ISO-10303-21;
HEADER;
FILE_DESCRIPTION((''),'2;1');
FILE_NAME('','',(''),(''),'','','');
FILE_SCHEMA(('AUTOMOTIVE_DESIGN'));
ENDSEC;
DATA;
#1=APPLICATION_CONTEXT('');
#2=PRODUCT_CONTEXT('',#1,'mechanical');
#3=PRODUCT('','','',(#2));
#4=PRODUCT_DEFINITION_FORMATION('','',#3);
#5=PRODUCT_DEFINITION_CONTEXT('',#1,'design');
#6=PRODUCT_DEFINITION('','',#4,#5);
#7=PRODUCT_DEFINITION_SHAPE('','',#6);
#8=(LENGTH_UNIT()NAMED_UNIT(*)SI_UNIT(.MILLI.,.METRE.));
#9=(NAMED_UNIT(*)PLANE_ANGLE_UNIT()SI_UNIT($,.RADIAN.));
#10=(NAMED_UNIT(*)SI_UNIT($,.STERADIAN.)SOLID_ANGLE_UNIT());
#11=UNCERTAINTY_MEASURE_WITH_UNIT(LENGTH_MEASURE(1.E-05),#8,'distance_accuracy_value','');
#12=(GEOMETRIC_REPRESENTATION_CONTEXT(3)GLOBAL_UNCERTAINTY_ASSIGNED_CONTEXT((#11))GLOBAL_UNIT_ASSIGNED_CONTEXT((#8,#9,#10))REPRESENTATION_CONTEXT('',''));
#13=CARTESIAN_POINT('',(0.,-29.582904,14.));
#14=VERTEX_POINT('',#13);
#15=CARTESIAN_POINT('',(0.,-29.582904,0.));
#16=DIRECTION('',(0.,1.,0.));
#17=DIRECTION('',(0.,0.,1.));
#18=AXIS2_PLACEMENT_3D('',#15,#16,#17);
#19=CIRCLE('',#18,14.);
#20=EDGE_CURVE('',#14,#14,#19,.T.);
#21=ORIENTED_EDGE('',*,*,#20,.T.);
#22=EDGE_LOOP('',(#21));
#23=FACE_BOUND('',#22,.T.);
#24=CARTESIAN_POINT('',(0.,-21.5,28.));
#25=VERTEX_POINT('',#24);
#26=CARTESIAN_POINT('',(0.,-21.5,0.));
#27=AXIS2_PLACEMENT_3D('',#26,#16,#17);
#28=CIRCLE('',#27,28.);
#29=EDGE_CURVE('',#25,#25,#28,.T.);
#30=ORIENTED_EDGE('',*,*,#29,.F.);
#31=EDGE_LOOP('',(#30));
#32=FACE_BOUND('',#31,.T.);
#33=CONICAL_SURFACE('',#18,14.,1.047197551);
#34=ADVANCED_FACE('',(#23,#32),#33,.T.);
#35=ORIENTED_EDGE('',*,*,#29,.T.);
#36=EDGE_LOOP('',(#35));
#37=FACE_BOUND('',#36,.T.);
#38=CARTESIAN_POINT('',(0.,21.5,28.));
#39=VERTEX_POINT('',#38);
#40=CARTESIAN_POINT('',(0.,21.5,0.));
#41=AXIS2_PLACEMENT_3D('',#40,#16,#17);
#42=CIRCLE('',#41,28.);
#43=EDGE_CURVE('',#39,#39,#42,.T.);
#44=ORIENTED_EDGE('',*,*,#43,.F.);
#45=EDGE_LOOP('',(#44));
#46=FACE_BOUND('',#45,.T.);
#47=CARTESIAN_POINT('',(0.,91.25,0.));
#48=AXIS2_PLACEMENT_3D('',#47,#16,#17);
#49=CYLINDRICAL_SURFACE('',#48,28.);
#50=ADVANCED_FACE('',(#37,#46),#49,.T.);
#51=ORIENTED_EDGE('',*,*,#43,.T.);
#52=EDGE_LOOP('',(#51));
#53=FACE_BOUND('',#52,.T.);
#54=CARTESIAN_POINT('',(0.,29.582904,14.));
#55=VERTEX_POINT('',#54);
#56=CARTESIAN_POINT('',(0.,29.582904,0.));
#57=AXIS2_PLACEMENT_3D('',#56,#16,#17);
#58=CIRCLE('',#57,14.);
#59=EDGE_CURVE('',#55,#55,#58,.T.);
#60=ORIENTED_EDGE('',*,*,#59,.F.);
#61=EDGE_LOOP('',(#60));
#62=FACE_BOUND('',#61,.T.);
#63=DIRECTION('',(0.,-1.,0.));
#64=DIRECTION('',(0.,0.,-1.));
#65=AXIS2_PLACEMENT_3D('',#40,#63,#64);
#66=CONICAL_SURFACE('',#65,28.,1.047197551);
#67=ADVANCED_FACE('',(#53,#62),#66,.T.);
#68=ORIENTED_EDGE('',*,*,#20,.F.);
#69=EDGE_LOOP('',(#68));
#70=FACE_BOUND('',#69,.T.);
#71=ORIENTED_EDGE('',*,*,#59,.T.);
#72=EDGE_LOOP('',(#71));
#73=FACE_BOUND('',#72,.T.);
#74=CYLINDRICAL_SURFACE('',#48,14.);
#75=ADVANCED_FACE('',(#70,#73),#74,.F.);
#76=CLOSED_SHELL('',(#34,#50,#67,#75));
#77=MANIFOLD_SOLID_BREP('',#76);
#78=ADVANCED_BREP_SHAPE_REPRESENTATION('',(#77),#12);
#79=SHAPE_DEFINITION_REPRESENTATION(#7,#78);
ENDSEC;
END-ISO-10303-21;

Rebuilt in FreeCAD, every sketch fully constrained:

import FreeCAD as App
import Part
import Sketcher
Q = App.Units.Quantity


def add_polygon(sketch, points):
    """Adds a closed chain of lines whose ends are joined by coincident constraints."""
    first, n = sketch.GeometryCount, len(points)
    for a, b in zip(points, points[1:] + points[:1]):
        sketch.addGeometry(Part.LineSegment(App.Vector(*a, 0), App.Vector(*b, 0)), False)
    for i in range(n):
        sketch.addConstraint(Sketcher.Constraint("Coincident", first + i, 2, first + (i + 1) % n, 1))

doc = App.newDocument("Part")
params = doc.addObject("Spreadsheet::Sheet", "Params")
for row, (alias, value) in enumerate([
    ("sketch1_height", "43 mm"),
    ("revolution_angle", "360 deg"),
], start=1):
    params.set(f"A{row}", alias)
    params.set(f"B{row}", "=" + value)
    params.setAlias(f"B{row}", alias)

body = doc.addObject("PartDesign::Body", "Body")

# Sketch on XY plane
sketch1 = body.newObject("Sketcher::SketchObject", "Sketch")
sketch1.AttachmentSupport = (doc.getObject("XY_Plane"), [""])
sketch1.MapMode = "FlatFace"
add_polygon(sketch1, [(14, 29.582904), (14, -29.582904), (28, -21.5), (28, 21.5)])  # lines 0-3
sketch1.addConstraint([
    Sketcher.Constraint("Vertical", 0),
    Sketcher.Constraint("Vertical", 2),
    Sketcher.Constraint("Equal", 1, 3),
    Sketcher.Constraint("DistanceY", 2, 1, 2, 2, 43.0),
    Sketcher.Constraint("Angle", 1, Q("30 deg")),
    Sketcher.Constraint("DistanceX", -1, 1, 0, 2, 14.0),
    Sketcher.Constraint("DistanceX", -1, 1, 1, 2, 28.0),
    Sketcher.Constraint("DistanceY", 1, 2, -1, 1, 21.5),
])
sketch1.setExpression("Constraints[7]", "Params.sketch1_height")
revolution = body.newObject("PartDesign::Revolution", "Revolution")
revolution.Profile = sketch1
revolution.ReferenceAxis = (sketch1, ["V_Axis"])
revolution.setExpression("Angle", "Params.revolution_angle")

doc.recompute()
